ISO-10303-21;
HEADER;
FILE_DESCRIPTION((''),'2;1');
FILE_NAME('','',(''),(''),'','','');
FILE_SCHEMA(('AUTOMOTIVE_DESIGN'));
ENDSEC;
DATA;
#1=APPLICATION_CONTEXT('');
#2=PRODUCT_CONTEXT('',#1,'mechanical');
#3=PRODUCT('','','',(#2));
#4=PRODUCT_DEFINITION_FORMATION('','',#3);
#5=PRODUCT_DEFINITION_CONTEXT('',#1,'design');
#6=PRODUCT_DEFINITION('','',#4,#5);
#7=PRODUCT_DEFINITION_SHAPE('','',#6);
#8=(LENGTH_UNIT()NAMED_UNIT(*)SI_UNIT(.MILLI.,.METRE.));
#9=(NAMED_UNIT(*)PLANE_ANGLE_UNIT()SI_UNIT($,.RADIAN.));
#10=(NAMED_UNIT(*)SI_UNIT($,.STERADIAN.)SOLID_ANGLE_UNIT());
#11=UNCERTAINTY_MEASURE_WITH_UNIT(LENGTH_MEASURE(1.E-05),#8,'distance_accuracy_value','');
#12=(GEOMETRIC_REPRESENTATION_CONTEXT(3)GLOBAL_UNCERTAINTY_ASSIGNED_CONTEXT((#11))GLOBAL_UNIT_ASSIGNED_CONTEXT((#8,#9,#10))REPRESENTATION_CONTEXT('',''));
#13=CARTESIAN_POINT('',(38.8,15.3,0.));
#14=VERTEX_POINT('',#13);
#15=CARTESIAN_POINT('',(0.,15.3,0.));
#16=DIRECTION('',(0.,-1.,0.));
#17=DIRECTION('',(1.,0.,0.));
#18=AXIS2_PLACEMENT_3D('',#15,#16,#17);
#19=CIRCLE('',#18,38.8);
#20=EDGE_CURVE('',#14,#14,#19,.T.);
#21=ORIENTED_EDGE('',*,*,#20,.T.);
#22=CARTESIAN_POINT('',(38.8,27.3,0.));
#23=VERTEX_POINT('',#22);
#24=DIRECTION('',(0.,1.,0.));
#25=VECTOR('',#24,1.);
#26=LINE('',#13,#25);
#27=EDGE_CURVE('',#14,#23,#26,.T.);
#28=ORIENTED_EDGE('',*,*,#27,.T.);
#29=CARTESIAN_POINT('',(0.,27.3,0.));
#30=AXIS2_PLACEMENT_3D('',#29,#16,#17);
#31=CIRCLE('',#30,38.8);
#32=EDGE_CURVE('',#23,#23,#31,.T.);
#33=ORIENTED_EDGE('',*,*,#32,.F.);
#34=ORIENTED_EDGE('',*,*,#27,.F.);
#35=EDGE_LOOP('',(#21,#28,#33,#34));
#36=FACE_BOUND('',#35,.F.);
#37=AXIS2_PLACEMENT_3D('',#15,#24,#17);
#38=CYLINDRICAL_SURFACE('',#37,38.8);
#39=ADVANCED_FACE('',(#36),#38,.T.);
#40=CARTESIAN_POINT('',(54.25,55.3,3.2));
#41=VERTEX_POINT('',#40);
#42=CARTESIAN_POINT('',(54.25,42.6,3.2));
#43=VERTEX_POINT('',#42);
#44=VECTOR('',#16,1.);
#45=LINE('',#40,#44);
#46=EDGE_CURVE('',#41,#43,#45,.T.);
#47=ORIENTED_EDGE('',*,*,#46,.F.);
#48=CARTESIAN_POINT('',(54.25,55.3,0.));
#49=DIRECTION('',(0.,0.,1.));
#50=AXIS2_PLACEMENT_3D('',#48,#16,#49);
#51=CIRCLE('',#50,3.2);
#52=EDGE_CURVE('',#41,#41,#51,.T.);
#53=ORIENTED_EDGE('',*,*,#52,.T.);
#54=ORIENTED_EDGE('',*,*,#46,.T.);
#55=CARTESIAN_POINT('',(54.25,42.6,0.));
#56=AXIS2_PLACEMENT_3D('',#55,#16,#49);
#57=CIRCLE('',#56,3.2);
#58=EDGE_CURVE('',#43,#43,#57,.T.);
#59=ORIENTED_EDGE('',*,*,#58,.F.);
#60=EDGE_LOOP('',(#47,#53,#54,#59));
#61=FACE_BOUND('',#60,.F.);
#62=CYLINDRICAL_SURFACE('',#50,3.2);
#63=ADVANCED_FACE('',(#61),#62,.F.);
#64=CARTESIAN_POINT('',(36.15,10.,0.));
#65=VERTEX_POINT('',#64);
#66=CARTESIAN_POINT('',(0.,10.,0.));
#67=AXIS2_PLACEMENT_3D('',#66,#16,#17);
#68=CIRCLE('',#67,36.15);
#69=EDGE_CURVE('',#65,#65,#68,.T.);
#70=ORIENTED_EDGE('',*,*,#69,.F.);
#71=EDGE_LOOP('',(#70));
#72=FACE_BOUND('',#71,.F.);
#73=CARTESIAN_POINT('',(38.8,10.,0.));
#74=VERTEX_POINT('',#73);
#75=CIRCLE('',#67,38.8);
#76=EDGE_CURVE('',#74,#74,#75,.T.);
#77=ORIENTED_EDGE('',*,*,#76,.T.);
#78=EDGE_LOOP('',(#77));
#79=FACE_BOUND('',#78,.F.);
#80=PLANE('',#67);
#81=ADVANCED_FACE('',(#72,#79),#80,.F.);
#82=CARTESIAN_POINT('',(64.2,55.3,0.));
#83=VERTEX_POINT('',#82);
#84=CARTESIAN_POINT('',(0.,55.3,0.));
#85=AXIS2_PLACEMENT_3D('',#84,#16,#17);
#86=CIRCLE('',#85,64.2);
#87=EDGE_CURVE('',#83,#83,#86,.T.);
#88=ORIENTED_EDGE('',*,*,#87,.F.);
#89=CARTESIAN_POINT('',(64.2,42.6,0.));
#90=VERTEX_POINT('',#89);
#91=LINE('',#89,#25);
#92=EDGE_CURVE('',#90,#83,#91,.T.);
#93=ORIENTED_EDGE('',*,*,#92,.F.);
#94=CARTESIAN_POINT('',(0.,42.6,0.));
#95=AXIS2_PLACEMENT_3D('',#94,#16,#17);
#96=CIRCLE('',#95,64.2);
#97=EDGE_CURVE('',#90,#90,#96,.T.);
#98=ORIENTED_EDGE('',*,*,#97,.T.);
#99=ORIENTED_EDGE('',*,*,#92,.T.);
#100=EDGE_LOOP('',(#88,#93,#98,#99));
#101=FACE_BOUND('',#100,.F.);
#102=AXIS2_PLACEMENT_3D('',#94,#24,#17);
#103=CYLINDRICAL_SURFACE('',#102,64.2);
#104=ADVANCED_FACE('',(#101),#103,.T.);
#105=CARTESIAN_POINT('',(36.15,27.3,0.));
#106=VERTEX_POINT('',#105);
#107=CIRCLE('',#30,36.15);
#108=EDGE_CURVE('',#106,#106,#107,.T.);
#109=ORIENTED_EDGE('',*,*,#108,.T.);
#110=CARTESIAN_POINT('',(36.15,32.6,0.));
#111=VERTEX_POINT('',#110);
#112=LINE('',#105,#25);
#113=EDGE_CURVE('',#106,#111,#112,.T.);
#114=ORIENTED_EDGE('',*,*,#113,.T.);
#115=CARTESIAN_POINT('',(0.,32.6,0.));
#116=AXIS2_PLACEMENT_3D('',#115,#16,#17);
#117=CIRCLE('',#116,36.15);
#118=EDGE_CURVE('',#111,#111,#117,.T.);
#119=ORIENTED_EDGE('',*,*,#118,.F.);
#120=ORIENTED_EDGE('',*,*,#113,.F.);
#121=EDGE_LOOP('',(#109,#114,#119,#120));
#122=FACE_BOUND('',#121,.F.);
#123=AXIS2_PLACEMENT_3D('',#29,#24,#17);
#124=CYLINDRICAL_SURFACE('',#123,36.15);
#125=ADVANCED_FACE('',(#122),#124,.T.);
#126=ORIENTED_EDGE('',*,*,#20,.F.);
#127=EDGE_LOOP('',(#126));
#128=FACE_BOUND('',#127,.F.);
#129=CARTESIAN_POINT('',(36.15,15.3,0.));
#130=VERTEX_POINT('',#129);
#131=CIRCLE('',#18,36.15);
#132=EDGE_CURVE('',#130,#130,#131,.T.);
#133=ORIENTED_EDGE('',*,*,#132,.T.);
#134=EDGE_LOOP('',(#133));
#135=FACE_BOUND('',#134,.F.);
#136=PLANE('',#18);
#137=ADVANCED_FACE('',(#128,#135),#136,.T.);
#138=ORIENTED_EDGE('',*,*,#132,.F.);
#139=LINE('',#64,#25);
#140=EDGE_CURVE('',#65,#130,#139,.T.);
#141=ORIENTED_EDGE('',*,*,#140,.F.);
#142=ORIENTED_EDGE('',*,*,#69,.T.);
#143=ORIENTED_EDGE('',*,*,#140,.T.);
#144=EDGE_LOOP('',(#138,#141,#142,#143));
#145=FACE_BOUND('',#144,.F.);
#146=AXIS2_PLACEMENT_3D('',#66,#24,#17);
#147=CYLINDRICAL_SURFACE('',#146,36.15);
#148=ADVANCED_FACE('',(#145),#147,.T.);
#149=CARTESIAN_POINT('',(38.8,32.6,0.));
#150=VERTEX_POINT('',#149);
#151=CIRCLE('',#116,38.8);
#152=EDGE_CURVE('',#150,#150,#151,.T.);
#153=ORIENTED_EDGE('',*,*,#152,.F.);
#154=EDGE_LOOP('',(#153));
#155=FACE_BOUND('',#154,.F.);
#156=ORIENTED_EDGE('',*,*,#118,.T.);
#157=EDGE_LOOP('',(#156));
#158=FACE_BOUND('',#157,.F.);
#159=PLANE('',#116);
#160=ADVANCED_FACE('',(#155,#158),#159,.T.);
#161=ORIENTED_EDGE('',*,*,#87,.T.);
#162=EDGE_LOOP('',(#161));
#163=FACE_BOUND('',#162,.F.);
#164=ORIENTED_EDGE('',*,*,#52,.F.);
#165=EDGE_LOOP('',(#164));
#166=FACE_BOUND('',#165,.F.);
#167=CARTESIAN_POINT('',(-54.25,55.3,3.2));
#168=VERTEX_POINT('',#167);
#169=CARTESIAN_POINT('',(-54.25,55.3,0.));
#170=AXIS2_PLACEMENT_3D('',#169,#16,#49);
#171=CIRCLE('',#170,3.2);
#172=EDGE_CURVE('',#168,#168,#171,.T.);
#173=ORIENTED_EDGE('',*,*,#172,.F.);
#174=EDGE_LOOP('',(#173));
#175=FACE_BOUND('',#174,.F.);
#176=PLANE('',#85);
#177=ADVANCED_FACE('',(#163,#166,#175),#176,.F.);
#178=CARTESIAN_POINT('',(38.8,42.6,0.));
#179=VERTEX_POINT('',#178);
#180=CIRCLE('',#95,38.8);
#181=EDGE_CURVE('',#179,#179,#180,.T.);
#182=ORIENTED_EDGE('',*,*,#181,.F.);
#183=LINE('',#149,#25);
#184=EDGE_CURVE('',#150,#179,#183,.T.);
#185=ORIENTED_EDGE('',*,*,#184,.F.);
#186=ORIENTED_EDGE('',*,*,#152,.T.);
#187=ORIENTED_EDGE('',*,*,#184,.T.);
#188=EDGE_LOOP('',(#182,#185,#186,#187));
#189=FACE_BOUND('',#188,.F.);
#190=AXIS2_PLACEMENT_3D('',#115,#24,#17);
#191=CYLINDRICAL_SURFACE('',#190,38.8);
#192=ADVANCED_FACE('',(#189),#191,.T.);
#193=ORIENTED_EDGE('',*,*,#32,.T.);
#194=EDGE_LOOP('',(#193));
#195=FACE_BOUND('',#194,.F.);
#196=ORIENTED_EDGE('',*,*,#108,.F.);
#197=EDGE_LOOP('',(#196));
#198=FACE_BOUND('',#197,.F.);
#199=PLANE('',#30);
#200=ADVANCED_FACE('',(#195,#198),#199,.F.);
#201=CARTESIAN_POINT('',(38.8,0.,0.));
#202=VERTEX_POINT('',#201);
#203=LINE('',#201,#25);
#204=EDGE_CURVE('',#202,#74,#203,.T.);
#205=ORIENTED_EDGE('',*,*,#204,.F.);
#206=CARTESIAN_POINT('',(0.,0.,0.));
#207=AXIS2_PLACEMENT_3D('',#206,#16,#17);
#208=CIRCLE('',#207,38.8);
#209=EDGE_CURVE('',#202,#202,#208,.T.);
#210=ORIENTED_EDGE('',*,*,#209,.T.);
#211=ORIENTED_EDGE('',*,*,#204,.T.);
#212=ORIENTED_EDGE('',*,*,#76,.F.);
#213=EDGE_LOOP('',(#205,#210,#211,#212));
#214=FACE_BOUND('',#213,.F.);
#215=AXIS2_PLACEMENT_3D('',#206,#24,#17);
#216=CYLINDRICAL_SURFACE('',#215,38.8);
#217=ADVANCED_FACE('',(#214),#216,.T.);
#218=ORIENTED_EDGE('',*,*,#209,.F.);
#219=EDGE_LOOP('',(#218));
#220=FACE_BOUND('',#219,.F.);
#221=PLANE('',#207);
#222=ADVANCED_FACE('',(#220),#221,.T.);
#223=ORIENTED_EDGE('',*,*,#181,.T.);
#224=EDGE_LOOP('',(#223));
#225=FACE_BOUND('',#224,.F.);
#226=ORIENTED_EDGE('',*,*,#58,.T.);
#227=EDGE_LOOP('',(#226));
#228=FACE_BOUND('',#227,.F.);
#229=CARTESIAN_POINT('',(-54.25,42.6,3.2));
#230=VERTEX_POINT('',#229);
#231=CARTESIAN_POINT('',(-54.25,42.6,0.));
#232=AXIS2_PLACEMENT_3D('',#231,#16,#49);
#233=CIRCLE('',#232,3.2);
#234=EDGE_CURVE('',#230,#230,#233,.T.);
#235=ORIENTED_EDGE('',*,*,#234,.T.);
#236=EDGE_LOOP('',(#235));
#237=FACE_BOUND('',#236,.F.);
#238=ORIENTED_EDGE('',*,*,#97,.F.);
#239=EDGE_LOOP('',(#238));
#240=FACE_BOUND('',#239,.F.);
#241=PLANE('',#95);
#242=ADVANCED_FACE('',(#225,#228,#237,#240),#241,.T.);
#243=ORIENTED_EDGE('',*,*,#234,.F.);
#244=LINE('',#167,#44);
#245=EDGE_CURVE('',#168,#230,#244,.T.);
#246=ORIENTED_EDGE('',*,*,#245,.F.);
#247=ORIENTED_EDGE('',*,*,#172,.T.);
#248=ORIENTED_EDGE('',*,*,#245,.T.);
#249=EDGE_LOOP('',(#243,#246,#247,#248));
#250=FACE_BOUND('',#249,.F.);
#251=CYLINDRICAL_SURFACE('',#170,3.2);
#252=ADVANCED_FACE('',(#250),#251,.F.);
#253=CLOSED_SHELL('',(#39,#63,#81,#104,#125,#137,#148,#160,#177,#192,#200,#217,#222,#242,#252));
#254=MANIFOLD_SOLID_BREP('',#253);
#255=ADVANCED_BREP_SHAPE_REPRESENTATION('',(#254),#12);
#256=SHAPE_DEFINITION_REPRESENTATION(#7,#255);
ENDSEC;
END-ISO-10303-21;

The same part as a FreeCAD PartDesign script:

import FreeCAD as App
import Part
import Sketcher
Q = App.Units.Quantity

doc = App.newDocument("Part")
body = doc.addObject("PartDesign::Body", "Body")

# Sketch on XY plane
sketch1 = doc.addObject("Sketcher::SketchObject", "Sketch")
body.addObject(sketch1)
sketch1.AttachmentSupport = (doc.XY_Plane, [""])
sketch1.MapMode = "FlatFace"
sketch1.addGeometry([
    Part.LineSegment(App.Vector(0, 55.3, 0), App.Vector(0, 0, 0)),  # 0
    Part.LineSegment(App.Vector(0, 0, 0), App.Vector(38.8, 0, 0)),  # 1
    Part.LineSegment(App.Vector(38.8, 0, 0), App.Vector(38.8, 10, 0)),  # 2
    Part.LineSegment(App.Vector(38.8, 10, 0), App.Vector(36.1, 10, 0)),  # 3
    Part.LineSegment(App.Vector(36.1, 10, 0), App.Vector(36.1, 15.3, 0)),  # 4
    Part.LineSegment(App.Vector(36.1, 15.3, 0), App.Vector(38.8, 15.3, 0)),  # 5
    Part.LineSegment(App.Vector(38.8, 15.3, 0), App.Vector(38.8, 27.3, 0)),  # 6
    Part.LineSegment(App.Vector(38.8, 27.3, 0), App.Vector(36.1, 27.3, 0)),  # 7
    Part.LineSegment(App.Vector(36.1, 27.3, 0), App.Vector(36.1, 32.6, 0)),  # 8
    Part.LineSegment(App.Vector(36.1, 32.6, 0), App.Vector(38.8, 32.6, 0)),  # 9
    Part.LineSegment(App.Vector(38.8, 32.6, 0), App.Vector(38.8, 42.6, 0)),  # 10
    Part.LineSegment(App.Vector(38.8, 42.6, 0), App.Vector(64.2, 42.6, 0)),  # 11
    Part.LineSegment(App.Vector(64.2, 42.6, 0), App.Vector(64.2, 55.3, 0)),  # 12
    Part.LineSegment(App.Vector(64.2, 55.3, 0), App.Vector(0, 55.3, 0)),  # 13
], False)
sketch1.addConstraint([
    Sketcher.Constraint("Coincident", 0, 2, 1, 1),
    Sketcher.Constraint("Coincident", 1, 2, 2, 1),
    Sketcher.Constraint("Coincident", 2, 2, 3, 1),
    Sketcher.Constraint("Coincident", 3, 2, 4, 1),
    Sketcher.Constraint("Coincident", 4, 2, 5, 1),
    Sketcher.Constraint("Coincident", 5, 2, 6, 1),
    Sketcher.Constraint("Coincident", 6, 2, 7, 1),
    Sketcher.Constraint("Coincident", 7, 2, 8, 1),
    Sketcher.Constraint("Coincident", 8, 2, 9, 1),
    Sketcher.Constraint("Coincident", 9, 2, 10, 1),
    Sketcher.Constraint("Coincident", 10, 2, 11, 1),
    Sketcher.Constraint("Coincident", 11, 2, 12, 1),
    Sketcher.Constraint("Coincident", 12, 2, 13, 1),
    Sketcher.Constraint("Coincident", 13, 2, 0, 1),
    Sketcher.Constraint("Vertical", 0),
    Sketcher.Constraint("Horizontal", 1),
    Sketcher.Constraint("Vertical", 2),
    Sketcher.Constraint("Horizontal", 3),
    Sketcher.Constraint("Vertical", 4),
    Sketcher.Constraint("Horizontal", 5),
    Sketcher.Constraint("Vertical", 6),
    Sketcher.Constraint("Horizontal", 7),
    Sketcher.Constraint("Vertical", 8),
    Sketcher.Constraint("Horizontal", 9),
    Sketcher.Constraint("Vertical", 10),
    Sketcher.Constraint("Horizontal", 11),
    Sketcher.Constraint("Vertical", 12),
    Sketcher.Constraint("Horizontal", 13),
    Sketcher.Constraint("Coincident", 0, 2, -1, 1),
    Sketcher.Constraint("Vertical", 2, 2, 5, 2),
    Sketcher.Constraint("Vertical", 4, 2, 7, 2),
    Sketcher.Constraint("Vertical", 6, 2, 9, 2),
    Sketcher.Constraint("Equal", 4, 8),
    Sketcher.Constraint("Equal", 2, 10),
    Sketcher.Constraint("DistanceY", 2, 1, 2, 2, Q("10 mm")),
    Sketcher.Constraint("DistanceY", 6, 1, 6, 2, Q("12 mm")),
    Sketcher.Constraint("DistanceX", 1, 1, 1, 2, Q("38.8 mm")),
    Sketcher.Constraint("DistanceX", 11, 1, 11, 2, Q("25.4 mm")),
    Sketcher.Constraint("DistanceY", 4, 1, 4, 2, Q("5.3 mm")),
    Sketcher.Constraint("DistanceY", 12, 1, 12, 2, Q("12.7 mm")),
    Sketcher.Constraint("DistanceX", 3, 2, 3, 1, Q("2.65 mm")),
])
revolution = doc.addObject("PartDesign::Revolution", "Revolution")
body.addObject(revolution)
revolution.Profile = sketch1
revolution.ReferenceAxis = (sketch1, ["V_Axis"])
revolution.Angle = 360

# Sketch on XZ plane
sketch2 = doc.addObject("Sketcher::SketchObject", "Sketch001")
body.addObject(sketch2)
sketch2.AttachmentSupport = (doc.XZ_Plane, [""])
sketch2.MapMode = "FlatFace"
sketch2.AttachmentOffset = App.Placement(App.Vector(0, 0, -55.3), App.Rotation())
sketch2.addGeometry(Part.Circle(App.Vector(54.2, 0, 0), App.Vector(0, 0, 1), 3.2), False)
sketch2.addConstraint([
    Sketcher.Constraint("PointOnObject", 0, 3, -1),
    Sketcher.Constraint("Diameter", 0, Q("6.4 mm")),
    Sketcher.Constraint("DistanceX", -1, 1, 0, 3, Q("54.25 mm")),
])
doc.recompute()
hole = doc.addObject("PartDesign::Hole", "Hole")
body.addObject(hole)
hole.Profile = sketch2
hole.ThreadType = "None"
hole.Diameter = 6.4
hole.DepthType = "Dimension"
hole.Depth = 100
hole.DrillPoint = "Angled"
hole.DrillPointAngle = 118
hole.Reversed = True

# Sketch on XZ plane
sketch3 = doc.addObject("Sketcher::SketchObject", "Sketch002")
body.addObject(sketch3)
sketch3.AttachmentSupport = (doc.XZ_Plane, [""])
sketch3.MapMode = "FlatFace"
sketch3.AttachmentOffset = App.Placement(App.Vector(0, 0, -55.3), App.Rotation())
sketch3.addGeometry(Part.Circle(App.Vector(-54.2, 0, 0), App.Vector(0, 0, 1), 3.2), False)
sketch3.addConstraint([
    Sketcher.Constraint("PointOnObject", 0, 3, -1),
    Sketcher.Constraint("Diameter", 0, Q("6.4 mm")),
    Sketcher.Constraint("DistanceX", 0, 3, -1, 1, Q("54.25 mm")),
])
doc.recompute()
hole2 = doc.addObject("PartDesign::Hole", "Hole001")
body.addObject(hole2)
hole2.Profile = sketch3
hole2.ThreadType = "None"
hole2.Diameter = 6.4
hole2.DepthType = "Dimension"
hole2.Depth = 100
hole2.DrillPoint = "Angled"
hole2.DrillPointAngle = 118
hole2.Reversed = True

doc.recompute()
